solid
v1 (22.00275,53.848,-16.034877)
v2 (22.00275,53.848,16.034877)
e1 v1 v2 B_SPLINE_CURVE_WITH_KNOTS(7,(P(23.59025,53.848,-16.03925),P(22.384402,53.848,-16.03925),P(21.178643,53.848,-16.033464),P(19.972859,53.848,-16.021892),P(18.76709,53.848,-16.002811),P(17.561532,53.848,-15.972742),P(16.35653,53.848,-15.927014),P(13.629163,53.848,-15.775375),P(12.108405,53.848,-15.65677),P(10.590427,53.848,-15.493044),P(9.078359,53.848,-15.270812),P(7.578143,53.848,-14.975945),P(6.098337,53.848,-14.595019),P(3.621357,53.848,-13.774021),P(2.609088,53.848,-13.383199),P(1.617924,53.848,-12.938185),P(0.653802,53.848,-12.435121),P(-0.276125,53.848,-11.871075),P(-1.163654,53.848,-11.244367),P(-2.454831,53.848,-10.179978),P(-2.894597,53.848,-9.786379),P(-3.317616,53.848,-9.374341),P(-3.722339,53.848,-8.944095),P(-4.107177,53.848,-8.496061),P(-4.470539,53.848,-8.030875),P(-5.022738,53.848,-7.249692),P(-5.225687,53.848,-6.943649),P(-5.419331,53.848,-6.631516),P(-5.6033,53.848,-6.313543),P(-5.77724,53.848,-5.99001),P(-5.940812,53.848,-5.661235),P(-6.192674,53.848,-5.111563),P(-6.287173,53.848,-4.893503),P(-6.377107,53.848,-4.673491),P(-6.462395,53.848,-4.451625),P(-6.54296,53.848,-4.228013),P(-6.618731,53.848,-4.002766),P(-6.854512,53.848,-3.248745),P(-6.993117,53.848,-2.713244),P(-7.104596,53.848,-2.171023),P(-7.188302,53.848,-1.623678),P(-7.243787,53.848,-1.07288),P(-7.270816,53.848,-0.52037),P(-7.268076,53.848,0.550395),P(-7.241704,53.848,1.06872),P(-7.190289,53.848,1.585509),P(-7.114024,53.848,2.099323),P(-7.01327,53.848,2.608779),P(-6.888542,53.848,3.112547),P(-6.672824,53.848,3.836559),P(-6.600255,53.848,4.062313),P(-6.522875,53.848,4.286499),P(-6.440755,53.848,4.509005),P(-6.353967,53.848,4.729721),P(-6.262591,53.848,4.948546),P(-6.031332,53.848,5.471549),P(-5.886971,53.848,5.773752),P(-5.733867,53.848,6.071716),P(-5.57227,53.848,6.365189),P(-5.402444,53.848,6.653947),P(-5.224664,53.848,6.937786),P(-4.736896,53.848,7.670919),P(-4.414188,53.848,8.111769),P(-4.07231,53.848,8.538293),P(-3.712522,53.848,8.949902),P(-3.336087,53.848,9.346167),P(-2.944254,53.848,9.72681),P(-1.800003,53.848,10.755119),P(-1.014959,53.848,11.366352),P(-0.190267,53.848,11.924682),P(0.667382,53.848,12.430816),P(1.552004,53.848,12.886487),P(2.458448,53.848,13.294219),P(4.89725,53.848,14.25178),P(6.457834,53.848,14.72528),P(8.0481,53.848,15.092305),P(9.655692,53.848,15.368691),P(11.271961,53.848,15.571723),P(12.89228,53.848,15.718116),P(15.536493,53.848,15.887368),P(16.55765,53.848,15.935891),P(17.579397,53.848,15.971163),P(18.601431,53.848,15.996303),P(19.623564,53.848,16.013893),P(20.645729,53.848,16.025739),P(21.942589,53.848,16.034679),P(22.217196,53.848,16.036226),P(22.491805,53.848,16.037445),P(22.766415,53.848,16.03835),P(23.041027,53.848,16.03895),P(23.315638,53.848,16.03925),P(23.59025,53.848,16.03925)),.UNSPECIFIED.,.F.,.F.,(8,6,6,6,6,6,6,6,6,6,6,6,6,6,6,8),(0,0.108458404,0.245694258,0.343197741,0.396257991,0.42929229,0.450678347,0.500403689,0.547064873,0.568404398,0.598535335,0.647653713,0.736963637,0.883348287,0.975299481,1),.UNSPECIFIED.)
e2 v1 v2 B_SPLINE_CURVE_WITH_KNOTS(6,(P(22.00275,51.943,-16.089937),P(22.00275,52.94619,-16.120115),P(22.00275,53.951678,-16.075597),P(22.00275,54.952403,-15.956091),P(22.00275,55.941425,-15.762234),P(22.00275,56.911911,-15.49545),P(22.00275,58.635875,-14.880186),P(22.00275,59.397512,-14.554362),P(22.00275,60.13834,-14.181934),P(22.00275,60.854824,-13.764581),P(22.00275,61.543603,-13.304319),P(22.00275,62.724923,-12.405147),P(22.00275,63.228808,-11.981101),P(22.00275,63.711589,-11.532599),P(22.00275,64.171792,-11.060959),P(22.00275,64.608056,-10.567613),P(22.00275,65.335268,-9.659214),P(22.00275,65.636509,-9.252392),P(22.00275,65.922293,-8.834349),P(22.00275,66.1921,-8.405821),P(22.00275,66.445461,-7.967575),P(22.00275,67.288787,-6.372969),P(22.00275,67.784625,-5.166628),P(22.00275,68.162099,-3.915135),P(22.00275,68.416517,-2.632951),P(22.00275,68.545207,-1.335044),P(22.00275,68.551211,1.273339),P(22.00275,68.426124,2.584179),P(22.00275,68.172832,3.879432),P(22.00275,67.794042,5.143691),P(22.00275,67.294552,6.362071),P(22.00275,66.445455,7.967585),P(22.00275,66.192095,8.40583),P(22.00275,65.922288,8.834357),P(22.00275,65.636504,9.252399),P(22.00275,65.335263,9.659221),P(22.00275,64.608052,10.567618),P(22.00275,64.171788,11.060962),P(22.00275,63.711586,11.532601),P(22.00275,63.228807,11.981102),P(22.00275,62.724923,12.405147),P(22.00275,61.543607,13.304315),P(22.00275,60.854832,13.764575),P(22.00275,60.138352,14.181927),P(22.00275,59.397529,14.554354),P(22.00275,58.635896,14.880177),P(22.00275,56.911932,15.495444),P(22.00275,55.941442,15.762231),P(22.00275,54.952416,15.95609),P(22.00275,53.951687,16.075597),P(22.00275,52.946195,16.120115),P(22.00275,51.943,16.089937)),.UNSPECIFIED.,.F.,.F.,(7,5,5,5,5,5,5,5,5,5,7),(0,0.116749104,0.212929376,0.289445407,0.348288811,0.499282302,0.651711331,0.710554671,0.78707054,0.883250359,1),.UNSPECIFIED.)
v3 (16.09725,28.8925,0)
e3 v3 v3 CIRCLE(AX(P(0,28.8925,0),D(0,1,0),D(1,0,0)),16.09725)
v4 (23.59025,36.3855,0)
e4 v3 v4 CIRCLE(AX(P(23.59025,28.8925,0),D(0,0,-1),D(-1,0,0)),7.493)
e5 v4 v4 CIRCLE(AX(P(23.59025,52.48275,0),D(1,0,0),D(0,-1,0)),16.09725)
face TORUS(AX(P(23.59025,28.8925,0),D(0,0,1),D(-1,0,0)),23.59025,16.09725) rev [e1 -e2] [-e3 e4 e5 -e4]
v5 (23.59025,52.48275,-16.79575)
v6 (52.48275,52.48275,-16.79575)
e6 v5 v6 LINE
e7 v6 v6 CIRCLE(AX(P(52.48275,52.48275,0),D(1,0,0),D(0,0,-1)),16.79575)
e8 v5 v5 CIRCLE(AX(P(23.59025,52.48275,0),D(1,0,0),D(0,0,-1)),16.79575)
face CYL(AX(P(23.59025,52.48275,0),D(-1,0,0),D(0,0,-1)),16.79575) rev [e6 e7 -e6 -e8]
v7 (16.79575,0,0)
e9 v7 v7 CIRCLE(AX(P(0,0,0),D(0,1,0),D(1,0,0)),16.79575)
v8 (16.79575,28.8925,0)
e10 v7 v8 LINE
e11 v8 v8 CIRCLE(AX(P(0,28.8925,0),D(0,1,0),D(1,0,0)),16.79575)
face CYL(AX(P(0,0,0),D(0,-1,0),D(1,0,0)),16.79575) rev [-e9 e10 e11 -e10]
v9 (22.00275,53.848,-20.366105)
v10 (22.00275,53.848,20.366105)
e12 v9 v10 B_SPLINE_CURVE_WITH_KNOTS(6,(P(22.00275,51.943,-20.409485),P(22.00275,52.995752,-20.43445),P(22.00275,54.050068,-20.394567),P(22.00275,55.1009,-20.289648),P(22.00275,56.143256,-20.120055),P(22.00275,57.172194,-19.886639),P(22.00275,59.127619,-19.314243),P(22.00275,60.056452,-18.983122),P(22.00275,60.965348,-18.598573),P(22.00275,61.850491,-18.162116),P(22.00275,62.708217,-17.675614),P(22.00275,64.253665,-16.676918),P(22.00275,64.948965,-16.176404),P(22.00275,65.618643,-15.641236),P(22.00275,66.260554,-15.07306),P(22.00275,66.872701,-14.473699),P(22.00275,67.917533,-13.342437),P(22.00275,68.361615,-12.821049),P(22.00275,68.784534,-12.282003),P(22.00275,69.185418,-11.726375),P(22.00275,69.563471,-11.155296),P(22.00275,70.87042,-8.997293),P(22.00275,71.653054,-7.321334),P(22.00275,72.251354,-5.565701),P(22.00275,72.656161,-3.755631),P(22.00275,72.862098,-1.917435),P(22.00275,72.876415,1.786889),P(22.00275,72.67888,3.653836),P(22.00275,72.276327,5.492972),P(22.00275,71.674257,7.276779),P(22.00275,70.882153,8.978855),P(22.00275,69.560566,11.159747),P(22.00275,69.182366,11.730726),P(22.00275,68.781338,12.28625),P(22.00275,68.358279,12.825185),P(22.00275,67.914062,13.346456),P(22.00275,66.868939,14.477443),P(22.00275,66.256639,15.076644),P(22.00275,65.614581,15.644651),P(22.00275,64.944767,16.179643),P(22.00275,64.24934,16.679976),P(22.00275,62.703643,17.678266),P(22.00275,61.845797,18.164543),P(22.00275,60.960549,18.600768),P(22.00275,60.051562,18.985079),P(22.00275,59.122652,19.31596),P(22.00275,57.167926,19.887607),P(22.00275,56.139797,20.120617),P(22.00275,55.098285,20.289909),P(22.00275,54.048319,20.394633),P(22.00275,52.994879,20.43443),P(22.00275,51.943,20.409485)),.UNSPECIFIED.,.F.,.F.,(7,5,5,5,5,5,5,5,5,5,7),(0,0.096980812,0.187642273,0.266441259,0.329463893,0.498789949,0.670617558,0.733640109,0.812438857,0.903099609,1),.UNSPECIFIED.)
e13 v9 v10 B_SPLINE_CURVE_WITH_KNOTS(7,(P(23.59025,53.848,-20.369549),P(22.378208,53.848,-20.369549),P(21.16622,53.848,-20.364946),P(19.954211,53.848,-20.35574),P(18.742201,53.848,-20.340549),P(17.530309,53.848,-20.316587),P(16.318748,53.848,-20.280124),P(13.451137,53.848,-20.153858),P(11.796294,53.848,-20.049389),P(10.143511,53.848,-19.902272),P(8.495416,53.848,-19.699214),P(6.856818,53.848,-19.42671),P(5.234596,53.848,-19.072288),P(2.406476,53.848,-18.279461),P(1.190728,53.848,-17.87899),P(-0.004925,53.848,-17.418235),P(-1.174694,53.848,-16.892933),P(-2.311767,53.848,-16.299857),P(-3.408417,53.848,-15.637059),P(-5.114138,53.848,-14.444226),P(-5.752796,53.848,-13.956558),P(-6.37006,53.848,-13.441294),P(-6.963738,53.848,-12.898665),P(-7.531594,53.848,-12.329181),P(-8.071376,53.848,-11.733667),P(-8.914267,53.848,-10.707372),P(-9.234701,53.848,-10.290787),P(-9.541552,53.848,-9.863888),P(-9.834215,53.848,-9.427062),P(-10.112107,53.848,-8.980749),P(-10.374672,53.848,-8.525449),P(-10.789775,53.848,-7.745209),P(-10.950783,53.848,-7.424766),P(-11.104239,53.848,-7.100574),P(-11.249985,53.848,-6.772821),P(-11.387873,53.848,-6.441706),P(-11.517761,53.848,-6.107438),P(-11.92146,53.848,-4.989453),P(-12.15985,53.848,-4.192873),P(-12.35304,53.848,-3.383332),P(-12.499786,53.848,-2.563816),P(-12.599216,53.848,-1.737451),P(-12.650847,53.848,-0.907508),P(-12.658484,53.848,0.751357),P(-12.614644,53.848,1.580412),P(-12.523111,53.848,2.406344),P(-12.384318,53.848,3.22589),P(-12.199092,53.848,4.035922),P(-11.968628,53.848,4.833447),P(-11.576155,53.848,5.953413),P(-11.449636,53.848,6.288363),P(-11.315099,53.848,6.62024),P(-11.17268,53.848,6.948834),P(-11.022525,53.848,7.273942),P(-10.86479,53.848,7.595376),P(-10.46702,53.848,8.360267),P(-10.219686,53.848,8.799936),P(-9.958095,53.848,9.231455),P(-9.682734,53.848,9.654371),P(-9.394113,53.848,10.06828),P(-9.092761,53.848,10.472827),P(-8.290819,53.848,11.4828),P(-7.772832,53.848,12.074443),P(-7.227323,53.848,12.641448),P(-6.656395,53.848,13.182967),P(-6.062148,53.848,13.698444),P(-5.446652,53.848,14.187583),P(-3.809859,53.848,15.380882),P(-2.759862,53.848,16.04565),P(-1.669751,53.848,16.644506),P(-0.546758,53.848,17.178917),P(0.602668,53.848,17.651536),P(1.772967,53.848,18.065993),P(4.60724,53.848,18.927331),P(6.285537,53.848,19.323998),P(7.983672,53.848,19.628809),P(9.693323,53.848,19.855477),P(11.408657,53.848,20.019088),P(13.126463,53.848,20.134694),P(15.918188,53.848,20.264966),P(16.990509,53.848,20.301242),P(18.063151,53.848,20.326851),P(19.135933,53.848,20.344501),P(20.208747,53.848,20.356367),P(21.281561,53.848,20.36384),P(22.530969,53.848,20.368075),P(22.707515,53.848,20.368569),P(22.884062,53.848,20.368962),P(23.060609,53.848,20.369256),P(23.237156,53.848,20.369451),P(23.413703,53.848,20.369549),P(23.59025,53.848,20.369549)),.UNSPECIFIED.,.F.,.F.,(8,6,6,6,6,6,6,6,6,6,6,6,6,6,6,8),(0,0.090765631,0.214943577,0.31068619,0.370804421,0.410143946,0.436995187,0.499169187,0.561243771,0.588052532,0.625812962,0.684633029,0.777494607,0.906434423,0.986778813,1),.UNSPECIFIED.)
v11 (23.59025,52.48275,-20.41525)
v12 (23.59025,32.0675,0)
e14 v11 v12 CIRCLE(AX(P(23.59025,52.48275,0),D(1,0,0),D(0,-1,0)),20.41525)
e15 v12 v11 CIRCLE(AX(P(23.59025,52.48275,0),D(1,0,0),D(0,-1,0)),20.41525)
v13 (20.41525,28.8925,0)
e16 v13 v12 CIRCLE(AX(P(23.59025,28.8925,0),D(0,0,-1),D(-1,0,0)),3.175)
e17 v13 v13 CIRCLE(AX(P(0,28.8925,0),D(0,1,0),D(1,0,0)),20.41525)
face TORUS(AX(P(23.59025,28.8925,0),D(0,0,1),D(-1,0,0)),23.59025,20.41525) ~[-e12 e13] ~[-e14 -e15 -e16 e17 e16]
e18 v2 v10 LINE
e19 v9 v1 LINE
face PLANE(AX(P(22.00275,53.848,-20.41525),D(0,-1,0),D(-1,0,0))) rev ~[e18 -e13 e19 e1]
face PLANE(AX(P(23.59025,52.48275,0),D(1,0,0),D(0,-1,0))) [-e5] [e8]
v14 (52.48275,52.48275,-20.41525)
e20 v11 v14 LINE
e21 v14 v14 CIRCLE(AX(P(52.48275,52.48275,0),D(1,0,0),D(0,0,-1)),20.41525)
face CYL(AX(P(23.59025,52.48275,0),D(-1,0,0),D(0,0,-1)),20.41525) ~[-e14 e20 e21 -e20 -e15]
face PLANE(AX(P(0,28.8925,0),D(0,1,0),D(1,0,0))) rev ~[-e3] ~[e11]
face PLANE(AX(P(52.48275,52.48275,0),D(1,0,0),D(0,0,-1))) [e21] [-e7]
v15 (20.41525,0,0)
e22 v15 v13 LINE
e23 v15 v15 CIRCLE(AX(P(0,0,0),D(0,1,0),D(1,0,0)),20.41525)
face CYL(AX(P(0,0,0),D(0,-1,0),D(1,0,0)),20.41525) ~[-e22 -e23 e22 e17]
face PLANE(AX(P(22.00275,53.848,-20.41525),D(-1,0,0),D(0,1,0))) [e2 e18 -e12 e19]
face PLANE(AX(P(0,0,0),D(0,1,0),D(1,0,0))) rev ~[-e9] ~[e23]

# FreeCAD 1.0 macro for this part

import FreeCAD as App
import Part
import Sketcher
Q = App.Units.Quantity

doc = App.newDocument("Part")
body = doc.addObject("PartDesign::Body", "Body")

# Sketch on XZ plane
sketch1 = body.newObject("Sketcher::SketchObject", "Sketch")
sketch1.AttachmentSupport = (doc.getObject("XZ_Plane"), [""])
sketch1.MapMode = "FlatFace"
sketch1.addGeometry([
    Part.Circle(App.Vector(0, 0, 0), App.Vector(0, 0, 1), 20),
    Part.Circle(App.Vector(0, 0, 0), App.Vector(0, 0, 1), 17),
], False)
sketch1.addConstraint([
    Sketcher.Constraint("Coincident", 0, 3, -1, 1),
    Sketcher.Constraint("Coincident", 1, 3, -1, 1),
    Sketcher.Constraint("Diameter", 0, Q("1.6075 in")),
    Sketcher.Constraint("Diameter", 1, Q("1.3225 in")),
])
pad1 = body.newObject("PartDesign::Pad", "Pad")
pad1.Profile = sketch1
pad1.Length = Q("1.1375 in")
pad1.Reversed = True

# Sketch on XZ plane
sketch2 = body.newObject("Sketcher::SketchObject", "Sketch001")
sketch2.AttachmentSupport = (doc.getObject("XZ_Plane"), [""])
sketch2.MapMode = "FlatFace"
sketch2.AttachmentOffset = App.Placement(App.Vector(0, 0, -1.1375 * 25.4), App.Rotation())
sketch2.addGeometry([
    Part.Circle(App.Vector(0, 0, 0), App.Vector(0, 0, 1), 20),
    Part.Circle(App.Vector(0, 0, 0), App.Vector(0, 0, 1), 16),
], False)
sketch2.addGeometry(Part.LineSegment(App.Vector(24, 0, 0), App.Vector(24, -10, 0)), True)  # axis
sketch2.addConstraint([
    Sketcher.Constraint("Vertical", 2),
    Sketcher.Constraint("Coincident", 0, 3, -1, 1),
    Sketcher.Constraint("Coincident", 1, 3, -1, 1),
    Sketcher.Constraint("PointOnObject", 2, 1, -1),
    Sketcher.Constraint("Diameter", 0, Q("1.6075 in")),
    Sketcher.Constraint("Diameter", 1, Q("1.2675 in")),
    Sketcher.Constraint("DistanceY", 2, 2, 2, 1, Q("10 mm")),
    Sketcher.Constraint("DistanceX", -1, 1, 2, 1, Q("23.59025 mm")),
])
revolution = body.newObject("PartDesign::Revolution", "Revolution")
revolution.Profile = sketch2
revolution.ReferenceAxis = (sketch2, ["Axis0"])
revolution.Angle = 90

# Sketch on YZ plane
sketch3 = body.newObject("Sketcher::SketchObject", "Sketch002")
sketch3.AttachmentSupport = (doc.getObject("YZ_Plane"), [""])
sketch3.MapMode = "FlatFace"
sketch3.AttachmentOffset = App.Placement(App.Vector(0, 0, 23.59025), App.Rotation())
sketch3.addGeometry([
    Part.Circle(App.Vector(52, 0, 0), App.Vector(0, 0, 1), 20),
    Part.Circle(App.Vector(52, 0, 0), App.Vector(0, 0, 1), 17),
], False)
sketch3.addConstraint([
    Sketcher.Constraint("Coincident", 1, 3, 0, 3),
    Sketcher.Constraint("PointOnObject", 0, 3, -1),
    Sketcher.Constraint("Diameter", 0, Q("1.6075 in")),
    Sketcher.Constraint("Diameter", 1, Q("1.3225 in")),
    Sketcher.Constraint("DistanceX", -1, 1, 0, 3, Q("52.48275 mm")),
])
pad2 = body.newObject("PartDesign::Pad", "Pad001")
pad2.Profile = sketch3
pad2.Length = Q("1.1375 in")

# Sketch on XY plane
sketch4 = body.newObject("Sketcher::SketchObject", "Sketch003")
sketch4.AttachmentSupport = (doc.getObject("XY_Plane"), [""])
sketch4.MapMode = "FlatFace"
sketch4.AttachmentOffset = App.Placement(App.Vector(0, 0, -20.41525), App.Rotation())
sketch4.addGeometry([
    Part.LineSegment(App.Vector(22, 73, 0), App.Vector(22, 54, 0)),
    Part.LineSegment(App.Vector(22, 54, 0), App.Vector(-20, 54, 0)),
    Part.LineSegment(App.Vector(-20, 54, 0), App.Vector(-20, 73, 0)),
    Part.LineSegment(App.Vector(-20, 73, 0), App.Vector(22, 73, 0)),
], False)
sketch4.addConstraint([
    Sketcher.Constraint("Coincident", 0, 2, 1, 1),
    Sketcher.Constraint("Coincident", 1, 2, 2, 1),
    Sketcher.Constraint("Coincident", 2, 2, 3, 1),
    Sketcher.Constraint("Coincident", 3, 2, 0, 1),
    Sketcher.Constraint("Vertical", 0),
    Sketcher.Constraint("Horizontal", 1),
    Sketcher.Constraint("Vertical", 2),
    Sketcher.Constraint("Horizontal", 3),
    Sketcher.Constraint("DistanceX", 1, 2, 1, 1, Q("1.67 in")),
    Sketcher.Constraint("DistanceY", 0, 2, 0, 1, Q("0.75 in")),
    Sketcher.Constraint("DistanceY", -1, 1, 0, 2, Q("2.12 in")),
    Sketcher.Constraint("DistanceX", -1, 1, 0, 2, Q("22.00275 mm")),
])
pocket1 = body.newObject("PartDesign::Pocket", "Pocket")
pocket1.Profile = sketch4
pocket1.Length = Q("2.6375 in")
pocket1.Reversed = True

doc.recompute()
